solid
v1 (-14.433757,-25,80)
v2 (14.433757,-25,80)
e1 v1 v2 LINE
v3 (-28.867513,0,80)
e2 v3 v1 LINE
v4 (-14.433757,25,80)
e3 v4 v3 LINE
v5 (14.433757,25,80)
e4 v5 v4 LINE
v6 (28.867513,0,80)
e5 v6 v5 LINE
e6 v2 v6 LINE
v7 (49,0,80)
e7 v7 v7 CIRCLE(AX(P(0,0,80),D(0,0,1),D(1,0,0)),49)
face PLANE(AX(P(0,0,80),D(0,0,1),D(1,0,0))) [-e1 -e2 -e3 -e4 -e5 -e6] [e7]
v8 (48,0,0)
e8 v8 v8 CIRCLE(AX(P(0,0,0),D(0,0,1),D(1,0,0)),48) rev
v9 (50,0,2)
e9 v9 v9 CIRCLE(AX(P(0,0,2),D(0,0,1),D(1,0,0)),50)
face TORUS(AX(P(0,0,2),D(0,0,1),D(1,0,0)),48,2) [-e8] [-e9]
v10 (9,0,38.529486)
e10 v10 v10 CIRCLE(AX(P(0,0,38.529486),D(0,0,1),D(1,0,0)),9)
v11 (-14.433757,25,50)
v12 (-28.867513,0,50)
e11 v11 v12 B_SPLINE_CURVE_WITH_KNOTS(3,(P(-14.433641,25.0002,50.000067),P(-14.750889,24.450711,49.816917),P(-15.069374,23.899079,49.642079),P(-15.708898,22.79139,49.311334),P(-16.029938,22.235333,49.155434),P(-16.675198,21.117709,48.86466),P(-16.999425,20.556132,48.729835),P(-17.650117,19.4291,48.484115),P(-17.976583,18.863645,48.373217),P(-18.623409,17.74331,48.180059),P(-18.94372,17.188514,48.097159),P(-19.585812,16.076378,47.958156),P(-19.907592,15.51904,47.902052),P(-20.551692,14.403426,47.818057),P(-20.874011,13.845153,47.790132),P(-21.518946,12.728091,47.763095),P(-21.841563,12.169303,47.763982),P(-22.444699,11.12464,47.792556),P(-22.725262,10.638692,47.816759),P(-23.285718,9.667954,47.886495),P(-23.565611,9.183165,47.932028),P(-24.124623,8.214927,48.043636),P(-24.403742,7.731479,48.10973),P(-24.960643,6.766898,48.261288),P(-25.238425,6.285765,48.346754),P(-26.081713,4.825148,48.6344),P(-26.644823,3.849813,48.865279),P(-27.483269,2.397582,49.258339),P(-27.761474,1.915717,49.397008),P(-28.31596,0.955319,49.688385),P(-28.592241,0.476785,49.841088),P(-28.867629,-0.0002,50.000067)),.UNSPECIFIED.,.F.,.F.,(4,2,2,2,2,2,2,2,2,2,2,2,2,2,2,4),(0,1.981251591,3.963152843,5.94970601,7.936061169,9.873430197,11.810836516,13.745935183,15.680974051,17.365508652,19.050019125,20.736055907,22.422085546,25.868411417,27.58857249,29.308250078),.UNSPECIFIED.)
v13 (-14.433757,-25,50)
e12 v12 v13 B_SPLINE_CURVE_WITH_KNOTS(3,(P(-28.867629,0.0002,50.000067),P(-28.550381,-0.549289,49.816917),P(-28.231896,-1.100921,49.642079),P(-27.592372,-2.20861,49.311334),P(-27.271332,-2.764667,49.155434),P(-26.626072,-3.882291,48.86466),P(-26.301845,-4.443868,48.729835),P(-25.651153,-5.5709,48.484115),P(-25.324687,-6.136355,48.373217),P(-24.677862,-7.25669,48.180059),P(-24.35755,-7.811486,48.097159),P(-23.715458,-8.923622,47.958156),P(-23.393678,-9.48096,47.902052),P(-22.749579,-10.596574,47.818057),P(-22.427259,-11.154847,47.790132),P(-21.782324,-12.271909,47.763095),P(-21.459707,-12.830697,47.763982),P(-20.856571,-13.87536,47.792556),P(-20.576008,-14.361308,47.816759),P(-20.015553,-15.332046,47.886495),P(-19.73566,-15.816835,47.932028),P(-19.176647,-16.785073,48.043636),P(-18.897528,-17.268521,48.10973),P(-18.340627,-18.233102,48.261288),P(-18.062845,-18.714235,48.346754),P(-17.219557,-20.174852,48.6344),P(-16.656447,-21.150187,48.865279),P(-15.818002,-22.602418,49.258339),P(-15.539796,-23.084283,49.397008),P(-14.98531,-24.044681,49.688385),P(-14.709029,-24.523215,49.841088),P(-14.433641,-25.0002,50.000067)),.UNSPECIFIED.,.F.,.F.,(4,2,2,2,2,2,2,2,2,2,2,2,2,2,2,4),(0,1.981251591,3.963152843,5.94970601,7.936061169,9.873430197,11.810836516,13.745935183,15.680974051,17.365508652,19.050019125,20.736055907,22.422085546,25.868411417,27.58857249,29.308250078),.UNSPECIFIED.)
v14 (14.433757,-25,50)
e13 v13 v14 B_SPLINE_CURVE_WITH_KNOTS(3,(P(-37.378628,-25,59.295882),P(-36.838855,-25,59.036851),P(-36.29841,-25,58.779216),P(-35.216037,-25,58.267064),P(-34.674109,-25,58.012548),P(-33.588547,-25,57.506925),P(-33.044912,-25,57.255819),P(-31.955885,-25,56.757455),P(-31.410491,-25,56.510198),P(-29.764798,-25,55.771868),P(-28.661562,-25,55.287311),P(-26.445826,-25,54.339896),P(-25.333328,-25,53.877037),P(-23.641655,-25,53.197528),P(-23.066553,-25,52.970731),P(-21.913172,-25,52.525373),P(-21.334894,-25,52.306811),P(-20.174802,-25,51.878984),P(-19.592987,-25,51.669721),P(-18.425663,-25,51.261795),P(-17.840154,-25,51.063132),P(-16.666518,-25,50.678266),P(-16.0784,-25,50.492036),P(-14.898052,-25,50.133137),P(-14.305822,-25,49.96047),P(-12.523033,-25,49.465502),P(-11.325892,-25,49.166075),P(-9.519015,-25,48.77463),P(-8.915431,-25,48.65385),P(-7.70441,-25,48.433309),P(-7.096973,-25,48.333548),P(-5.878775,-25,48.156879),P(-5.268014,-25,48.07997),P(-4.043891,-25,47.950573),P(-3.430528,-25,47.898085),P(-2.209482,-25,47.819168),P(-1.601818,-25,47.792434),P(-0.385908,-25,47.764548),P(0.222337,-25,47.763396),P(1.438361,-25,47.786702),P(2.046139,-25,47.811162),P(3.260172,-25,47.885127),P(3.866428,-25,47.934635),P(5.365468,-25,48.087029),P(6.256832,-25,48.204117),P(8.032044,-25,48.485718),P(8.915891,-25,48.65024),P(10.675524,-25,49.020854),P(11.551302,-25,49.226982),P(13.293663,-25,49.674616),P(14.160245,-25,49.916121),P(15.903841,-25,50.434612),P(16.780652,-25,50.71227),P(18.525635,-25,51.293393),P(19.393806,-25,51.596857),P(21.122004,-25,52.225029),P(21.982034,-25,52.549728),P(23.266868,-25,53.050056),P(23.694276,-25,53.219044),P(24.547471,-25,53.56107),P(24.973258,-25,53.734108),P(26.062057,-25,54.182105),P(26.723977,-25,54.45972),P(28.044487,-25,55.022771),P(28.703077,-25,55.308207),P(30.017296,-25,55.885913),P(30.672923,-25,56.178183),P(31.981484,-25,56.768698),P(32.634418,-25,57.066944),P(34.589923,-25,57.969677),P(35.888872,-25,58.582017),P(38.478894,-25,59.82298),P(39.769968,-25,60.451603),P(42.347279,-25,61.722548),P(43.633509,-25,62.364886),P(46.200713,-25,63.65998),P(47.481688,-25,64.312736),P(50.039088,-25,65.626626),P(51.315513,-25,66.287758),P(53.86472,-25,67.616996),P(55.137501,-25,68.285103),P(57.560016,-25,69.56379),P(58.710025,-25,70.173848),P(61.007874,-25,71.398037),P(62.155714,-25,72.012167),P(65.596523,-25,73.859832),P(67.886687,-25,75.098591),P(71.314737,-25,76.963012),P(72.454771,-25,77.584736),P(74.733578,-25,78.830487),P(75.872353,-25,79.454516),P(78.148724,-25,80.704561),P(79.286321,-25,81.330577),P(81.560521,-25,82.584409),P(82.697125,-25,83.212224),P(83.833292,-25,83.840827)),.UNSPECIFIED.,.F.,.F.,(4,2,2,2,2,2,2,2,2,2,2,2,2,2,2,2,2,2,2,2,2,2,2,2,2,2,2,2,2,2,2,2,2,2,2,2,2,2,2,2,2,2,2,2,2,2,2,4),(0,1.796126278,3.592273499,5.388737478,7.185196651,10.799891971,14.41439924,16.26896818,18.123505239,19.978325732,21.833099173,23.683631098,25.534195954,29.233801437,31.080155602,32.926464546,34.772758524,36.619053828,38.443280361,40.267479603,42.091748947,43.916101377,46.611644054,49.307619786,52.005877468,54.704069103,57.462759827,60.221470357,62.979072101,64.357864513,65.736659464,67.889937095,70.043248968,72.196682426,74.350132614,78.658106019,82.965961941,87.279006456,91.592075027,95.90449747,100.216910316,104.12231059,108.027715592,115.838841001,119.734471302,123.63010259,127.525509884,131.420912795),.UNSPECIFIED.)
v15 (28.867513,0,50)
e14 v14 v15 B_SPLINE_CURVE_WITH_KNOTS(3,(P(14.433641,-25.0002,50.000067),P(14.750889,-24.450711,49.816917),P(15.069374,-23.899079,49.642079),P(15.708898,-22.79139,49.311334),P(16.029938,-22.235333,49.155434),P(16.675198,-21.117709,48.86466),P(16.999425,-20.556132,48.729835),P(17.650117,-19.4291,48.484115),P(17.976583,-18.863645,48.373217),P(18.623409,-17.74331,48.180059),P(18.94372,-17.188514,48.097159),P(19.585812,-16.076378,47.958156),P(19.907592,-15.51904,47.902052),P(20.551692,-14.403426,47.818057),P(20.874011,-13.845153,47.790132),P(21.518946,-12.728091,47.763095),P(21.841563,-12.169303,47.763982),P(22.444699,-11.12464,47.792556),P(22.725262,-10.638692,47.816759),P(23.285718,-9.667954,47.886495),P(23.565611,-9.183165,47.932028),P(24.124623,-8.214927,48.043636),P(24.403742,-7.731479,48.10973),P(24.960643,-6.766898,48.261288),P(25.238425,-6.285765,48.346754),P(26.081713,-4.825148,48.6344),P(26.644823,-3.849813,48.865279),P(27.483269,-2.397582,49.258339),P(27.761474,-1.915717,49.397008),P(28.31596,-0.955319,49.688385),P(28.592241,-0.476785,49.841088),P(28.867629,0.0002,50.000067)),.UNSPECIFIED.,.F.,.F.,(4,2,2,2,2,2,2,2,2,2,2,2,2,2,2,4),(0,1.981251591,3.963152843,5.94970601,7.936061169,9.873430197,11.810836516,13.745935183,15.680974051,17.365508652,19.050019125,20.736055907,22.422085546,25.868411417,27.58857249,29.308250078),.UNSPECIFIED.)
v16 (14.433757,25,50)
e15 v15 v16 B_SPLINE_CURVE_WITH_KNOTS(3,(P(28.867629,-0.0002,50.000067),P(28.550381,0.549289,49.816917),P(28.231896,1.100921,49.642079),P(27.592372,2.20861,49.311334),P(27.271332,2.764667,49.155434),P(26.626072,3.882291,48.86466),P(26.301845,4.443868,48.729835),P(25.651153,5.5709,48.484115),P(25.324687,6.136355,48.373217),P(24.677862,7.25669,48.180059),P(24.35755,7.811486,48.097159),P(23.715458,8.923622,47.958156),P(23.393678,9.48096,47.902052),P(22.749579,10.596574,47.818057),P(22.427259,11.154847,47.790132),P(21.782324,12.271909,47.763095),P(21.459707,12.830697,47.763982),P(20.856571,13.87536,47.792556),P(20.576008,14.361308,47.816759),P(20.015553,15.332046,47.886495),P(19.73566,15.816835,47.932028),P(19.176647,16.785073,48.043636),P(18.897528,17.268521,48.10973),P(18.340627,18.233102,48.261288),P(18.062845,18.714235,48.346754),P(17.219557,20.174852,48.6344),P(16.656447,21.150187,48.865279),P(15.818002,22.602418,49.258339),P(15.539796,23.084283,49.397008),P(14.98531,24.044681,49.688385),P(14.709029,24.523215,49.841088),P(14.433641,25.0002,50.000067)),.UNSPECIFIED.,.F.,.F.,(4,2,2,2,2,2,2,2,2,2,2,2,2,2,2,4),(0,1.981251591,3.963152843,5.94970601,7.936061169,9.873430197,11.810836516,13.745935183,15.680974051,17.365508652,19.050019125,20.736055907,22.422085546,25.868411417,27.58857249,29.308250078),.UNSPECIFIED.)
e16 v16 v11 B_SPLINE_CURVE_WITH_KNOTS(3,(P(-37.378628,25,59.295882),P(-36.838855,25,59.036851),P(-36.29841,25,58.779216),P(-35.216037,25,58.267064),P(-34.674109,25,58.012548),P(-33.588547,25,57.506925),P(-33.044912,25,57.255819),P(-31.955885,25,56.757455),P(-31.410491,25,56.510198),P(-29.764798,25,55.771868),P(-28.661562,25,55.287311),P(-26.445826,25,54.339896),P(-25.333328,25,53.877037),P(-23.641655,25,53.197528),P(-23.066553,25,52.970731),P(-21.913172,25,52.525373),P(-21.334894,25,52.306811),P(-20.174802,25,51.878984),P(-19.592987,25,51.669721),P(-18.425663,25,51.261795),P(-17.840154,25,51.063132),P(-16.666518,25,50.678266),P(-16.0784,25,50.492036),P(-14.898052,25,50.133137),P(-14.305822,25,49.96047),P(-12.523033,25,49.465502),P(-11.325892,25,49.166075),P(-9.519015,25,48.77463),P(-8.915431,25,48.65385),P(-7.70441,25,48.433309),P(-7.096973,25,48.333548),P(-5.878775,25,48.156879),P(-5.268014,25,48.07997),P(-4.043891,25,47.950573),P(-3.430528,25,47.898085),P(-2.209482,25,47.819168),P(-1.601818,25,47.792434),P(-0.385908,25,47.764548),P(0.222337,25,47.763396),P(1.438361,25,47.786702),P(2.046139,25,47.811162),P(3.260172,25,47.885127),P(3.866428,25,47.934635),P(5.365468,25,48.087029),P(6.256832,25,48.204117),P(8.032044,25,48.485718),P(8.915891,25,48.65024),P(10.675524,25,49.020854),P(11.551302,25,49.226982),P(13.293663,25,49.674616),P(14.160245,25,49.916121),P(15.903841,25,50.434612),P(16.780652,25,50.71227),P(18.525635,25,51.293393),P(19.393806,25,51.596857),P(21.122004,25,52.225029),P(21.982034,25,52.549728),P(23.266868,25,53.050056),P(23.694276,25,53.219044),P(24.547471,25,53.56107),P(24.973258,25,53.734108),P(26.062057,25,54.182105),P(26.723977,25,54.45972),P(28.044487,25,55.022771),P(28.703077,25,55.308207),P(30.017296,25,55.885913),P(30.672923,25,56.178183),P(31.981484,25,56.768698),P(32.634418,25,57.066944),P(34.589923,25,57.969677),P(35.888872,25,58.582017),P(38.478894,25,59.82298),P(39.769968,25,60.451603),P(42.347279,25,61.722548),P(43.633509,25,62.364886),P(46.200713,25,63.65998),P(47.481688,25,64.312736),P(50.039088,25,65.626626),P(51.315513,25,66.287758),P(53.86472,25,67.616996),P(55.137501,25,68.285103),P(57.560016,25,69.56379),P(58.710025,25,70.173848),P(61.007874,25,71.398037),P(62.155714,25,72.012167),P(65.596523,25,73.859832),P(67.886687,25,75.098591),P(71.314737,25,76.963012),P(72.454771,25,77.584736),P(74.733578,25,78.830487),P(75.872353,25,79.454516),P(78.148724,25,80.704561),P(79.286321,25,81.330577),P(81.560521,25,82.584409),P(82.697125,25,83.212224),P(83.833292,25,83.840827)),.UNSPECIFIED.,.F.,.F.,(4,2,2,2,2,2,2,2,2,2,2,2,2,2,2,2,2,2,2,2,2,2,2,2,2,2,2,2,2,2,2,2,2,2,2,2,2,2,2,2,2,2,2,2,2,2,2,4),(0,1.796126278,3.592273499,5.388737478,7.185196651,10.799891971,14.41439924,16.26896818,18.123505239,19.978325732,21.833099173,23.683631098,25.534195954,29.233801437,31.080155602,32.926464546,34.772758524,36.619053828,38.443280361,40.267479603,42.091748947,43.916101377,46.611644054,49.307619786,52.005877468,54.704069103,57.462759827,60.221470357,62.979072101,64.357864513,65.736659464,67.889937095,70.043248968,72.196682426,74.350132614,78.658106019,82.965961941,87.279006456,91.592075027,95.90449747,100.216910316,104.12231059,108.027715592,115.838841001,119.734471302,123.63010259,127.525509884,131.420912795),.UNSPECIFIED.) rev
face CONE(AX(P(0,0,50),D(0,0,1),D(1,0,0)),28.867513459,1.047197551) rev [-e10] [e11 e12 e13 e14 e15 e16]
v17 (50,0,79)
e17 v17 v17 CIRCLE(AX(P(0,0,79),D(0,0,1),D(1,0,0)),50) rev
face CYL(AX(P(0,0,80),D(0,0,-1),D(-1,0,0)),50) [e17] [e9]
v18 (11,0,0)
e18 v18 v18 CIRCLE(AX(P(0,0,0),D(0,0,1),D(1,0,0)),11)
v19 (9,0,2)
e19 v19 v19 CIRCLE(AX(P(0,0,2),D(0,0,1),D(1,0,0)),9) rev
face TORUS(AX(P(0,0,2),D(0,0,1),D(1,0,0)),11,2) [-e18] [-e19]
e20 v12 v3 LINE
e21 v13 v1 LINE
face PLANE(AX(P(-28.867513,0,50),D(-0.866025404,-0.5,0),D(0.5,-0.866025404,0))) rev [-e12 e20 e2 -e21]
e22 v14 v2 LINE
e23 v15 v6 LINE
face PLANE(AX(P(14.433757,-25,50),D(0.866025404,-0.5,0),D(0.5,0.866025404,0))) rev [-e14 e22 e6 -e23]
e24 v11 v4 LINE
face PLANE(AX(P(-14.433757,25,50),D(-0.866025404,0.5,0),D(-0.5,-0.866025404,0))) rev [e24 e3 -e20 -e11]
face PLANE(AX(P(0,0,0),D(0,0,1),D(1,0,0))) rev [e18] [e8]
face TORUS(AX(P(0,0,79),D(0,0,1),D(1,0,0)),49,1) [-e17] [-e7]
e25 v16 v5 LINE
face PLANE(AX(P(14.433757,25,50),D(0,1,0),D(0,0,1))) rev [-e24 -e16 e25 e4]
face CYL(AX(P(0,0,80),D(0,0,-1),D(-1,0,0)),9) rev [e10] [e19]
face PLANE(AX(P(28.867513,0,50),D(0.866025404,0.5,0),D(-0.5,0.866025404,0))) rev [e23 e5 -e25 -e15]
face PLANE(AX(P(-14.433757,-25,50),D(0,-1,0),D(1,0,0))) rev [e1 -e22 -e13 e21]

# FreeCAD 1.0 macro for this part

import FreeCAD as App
import Part
import Sketcher

V = App.Vector
Q = App.Units.Quantity


def edges_at(feature, points):
    """Names of the edges that pass closest to the given points."""
    edges = feature.Shape.Edges
    near = lambda p: min(range(len(edges)), key=lambda i: edges[i].distToShape(Part.Vertex(*p))[0])
    return sorted({f"Edge{near(p) + 1}" for p in points})


def add_polygon(sketch, points):
    """Adds a closed chain of lines whose ends are joined by coincident constraints."""
    first, n = sketch.GeometryCount, len(points)
    for a, b in zip(points, points[1:] + points[:1]):
        sketch.addGeometry(Part.LineSegment(App.Vector(*a, 0), App.Vector(*b, 0)), False)
    for i in range(n):
        sketch.addConstraint(Sketcher.Constraint("Coincident", first + i, 2, first + (i + 1) % n, 1))

doc = App.newDocument("Part")
params = doc.addObject("Spreadsheet::Sheet", "Params")
for row, (alias, value) in enumerate([
    ("sketch1_diameter", "100 mm"),
    ("sketch1_diameter2", "18 mm"),
    ("pad1_length", "80 mm"),
    ("fillet_radius", "2 mm"),
    ("fillet2_radius", "1 mm"),
    ("pad2_length", "30 mm"),
    ("revolution_angle", "360 deg"),
], start=1):
    params.set(f"A{row}", alias)
    params.set(f"B{row}", "=" + value)
    params.setAlias(f"B{row}", alias)

body = doc.addObject("PartDesign::Body", "Body")

sketch1 = body.newObject("Sketcher::SketchObject", "Sketch")
sketch1.AttachmentSupport = (doc.getObject("XY_Plane"), [""])
sketch1.MapMode = "FlatFace"
sketch1.addGeometry([
    Part.Circle(V(0, 0, 0), V(0, 0, 1), 50),
    Part.Circle(V(0, 0, 0), V(0, 0, 1), 9),
], False)
sketch1.addConstraint([
    Sketcher.Constraint("Coincident", 0, 3, -1, 1),
    Sketcher.Constraint("Coincident", 1, 3, -1, 1),
    Sketcher.Constraint("Diameter", 0, Q("100 mm")),
    Sketcher.Constraint("Diameter", 1, Q("18 mm")),
])
sketch1.setExpression("Constraints[2]", "Params.sketch1_diameter")
sketch1.setExpression("Constraints[3]", "Params.sketch1_diameter2")
pad1 = body.newObject("PartDesign::Pad", "Pad")
pad1.Profile = sketch1
pad1.setExpression("Length", "Params.pad1_length")
doc.recompute()

fillet = body.newObject("PartDesign::Fillet", "Fillet")
fillet.Base = (pad1, edges_at(pad1, [(-50, 0, 0), (-9, 0, 0)]))
fillet.setExpression("Radius", "Params.fillet_radius")
doc.recompute()

fillet2 = body.newObject("PartDesign::Fillet", "Fillet001")
fillet2.Base = (fillet, edges_at(fillet, [(-50, 0, 80)]))
fillet2.setExpression("Radius", "Params.fillet2_radius")
body2 = doc.addObject("PartDesign::Body", "Body001")

sketch2 = body2.newObject("Sketcher::SketchObject", "Sketch001")
sketch2.AttachmentSupport = (doc.getObject("XY_Plane001"), [""])
sketch2.MapMode = "FlatFace"
sketch2.AttachmentOffset = App.Placement(V(0, 0, 80), App.Rotation())
add_polygon(sketch2, [(29, 0), (14, 25), (-14, 25), (-29, 0), (-14, -25), (14, -25)])
sketch2.addConstraint([
    Sketcher.Constraint("Horizontal", 1),
    Sketcher.Constraint("Horizontal", 4),
    Sketcher.Constraint("Symmetric", 0, 2, 3, 2, -1, 1),
    Sketcher.Constraint("Symmetric", 2, 2, 5, 2, -1, 1),
    Sketcher.Constraint("PointOnObject", 2, 2, -1),
    Sketcher.Constraint("Parallel", 2, 5),
    Sketcher.Constraint("Vertical", 1, 2, 3, 2),
    Sketcher.Constraint("Angle", 0, Q("120 deg")),
    Sketcher.Constraint("DistanceY", -1, 1, 0, 2, Q("25 mm")),
    Sketcher.Constraint("DistanceX", 1, 2, 1, 1, Q("28.867513 mm")),
])
pad2 = body2.newObject("PartDesign::Pad", "Pad001")
pad2.Profile = sketch2
pad2.setExpression("Length", "Params.pad2_length")
pad2.Reversed = True

sketch3 = body2.newObject("Sketcher::SketchObject", "Sketch002")
sketch3.AttachmentSupport = (doc.getObject("XZ_Plane001"), [""])
sketch3.MapMode = "FlatFace"
add_polygon(sketch3, [(-29, 50), (0, 33), (0, 50)])
sketch3.addConstraint([
    Sketcher.Constraint("Vertical", 1),
    Sketcher.Constraint("Horizontal", 2),
    Sketcher.Constraint("PointOnObject", 0, 2, -2),
    Sketcher.Constraint("Angle", 0, Q("-30 deg")),
    Sketcher.Constraint("DistanceY", -1, 1, 1, 2, Q("50 mm")),
    Sketcher.Constraint("DistanceX", 2, 2, 2, 1, Q("28.867513 mm")),
])
revolution = body2.newObject("PartDesign::Revolution", "Revolution")
revolution.Profile = sketch3
revolution.ReferenceAxis = (sketch3, ["V_Axis"])
revolution.setExpression("Angle", "Params.revolution_angle")

sketch4 = body2.newObject("Sketcher::SketchObject", "Sketch003")
sketch4.AttachmentSupport = (doc.getObject("XY_Plane001"), [""])
sketch4.MapMode = "FlatFace"
sketch4.AttachmentOffset = App.Placement(V(0, 0, 80), App.Rotation())
add_polygon(sketch4, [(-67, 67), (-67, -67), (67, -67), (67, 67)])
add_polygon(sketch4, [(29, 0), (14, -25), (-14, -25), (-29, 0), (-14, 25), (14, 25)])
sketch4.addConstraint([
    Sketcher.Constraint("Vertical", 0),
    Sketcher.Constraint("Horizontal", 1),
    Sketcher.Constraint("Vertical", 2),
    Sketcher.Constraint("Horizontal", 3),
    Sketcher.Constraint("Horizontal", 5),
    Sketcher.Constraint("Horizontal", 8),
    Sketcher.Constraint("Symmetric", 0, 2, 2, 2, -1, 1),
    Sketcher.Constraint("Symmetric", 4, 2, 7, 2, -1, 1),
    Sketcher.Constraint("Symmetric", 6, 2, 9, 2, -1, 1),
    Sketcher.Constraint("PointOnObject", 6, 2, -1),
    Sketcher.Constraint("Parallel", 6, 9),
    Sketcher.Constraint("Vertical", 5, 2, 7, 2),
    Sketcher.Constraint("Equal", 3, 0),
    Sketcher.Constraint("Angle", 4, Q("-120 deg")),
    Sketcher.Constraint("DistanceY", 4, 2, -1, 1, Q("25 mm")),
    Sketcher.Constraint("DistanceX", 1, 1, 1, 2, Q("134.496 mm")),
    Sketcher.Constraint("DistanceX", 5, 2, 5, 1, Q("28.867513 mm")),
])
pocket1 = body2.newObject("PartDesign::Pocket", "Pocket")
pocket1.Profile = sketch4
pocket1.Type = "ThroughAll"
doc.recompute()

boolean = body.newObject("PartDesign::Boolean", "Boolean")
boolean.Type = "Cut"
boolean.addObjects([body2])

doc.recompute()
